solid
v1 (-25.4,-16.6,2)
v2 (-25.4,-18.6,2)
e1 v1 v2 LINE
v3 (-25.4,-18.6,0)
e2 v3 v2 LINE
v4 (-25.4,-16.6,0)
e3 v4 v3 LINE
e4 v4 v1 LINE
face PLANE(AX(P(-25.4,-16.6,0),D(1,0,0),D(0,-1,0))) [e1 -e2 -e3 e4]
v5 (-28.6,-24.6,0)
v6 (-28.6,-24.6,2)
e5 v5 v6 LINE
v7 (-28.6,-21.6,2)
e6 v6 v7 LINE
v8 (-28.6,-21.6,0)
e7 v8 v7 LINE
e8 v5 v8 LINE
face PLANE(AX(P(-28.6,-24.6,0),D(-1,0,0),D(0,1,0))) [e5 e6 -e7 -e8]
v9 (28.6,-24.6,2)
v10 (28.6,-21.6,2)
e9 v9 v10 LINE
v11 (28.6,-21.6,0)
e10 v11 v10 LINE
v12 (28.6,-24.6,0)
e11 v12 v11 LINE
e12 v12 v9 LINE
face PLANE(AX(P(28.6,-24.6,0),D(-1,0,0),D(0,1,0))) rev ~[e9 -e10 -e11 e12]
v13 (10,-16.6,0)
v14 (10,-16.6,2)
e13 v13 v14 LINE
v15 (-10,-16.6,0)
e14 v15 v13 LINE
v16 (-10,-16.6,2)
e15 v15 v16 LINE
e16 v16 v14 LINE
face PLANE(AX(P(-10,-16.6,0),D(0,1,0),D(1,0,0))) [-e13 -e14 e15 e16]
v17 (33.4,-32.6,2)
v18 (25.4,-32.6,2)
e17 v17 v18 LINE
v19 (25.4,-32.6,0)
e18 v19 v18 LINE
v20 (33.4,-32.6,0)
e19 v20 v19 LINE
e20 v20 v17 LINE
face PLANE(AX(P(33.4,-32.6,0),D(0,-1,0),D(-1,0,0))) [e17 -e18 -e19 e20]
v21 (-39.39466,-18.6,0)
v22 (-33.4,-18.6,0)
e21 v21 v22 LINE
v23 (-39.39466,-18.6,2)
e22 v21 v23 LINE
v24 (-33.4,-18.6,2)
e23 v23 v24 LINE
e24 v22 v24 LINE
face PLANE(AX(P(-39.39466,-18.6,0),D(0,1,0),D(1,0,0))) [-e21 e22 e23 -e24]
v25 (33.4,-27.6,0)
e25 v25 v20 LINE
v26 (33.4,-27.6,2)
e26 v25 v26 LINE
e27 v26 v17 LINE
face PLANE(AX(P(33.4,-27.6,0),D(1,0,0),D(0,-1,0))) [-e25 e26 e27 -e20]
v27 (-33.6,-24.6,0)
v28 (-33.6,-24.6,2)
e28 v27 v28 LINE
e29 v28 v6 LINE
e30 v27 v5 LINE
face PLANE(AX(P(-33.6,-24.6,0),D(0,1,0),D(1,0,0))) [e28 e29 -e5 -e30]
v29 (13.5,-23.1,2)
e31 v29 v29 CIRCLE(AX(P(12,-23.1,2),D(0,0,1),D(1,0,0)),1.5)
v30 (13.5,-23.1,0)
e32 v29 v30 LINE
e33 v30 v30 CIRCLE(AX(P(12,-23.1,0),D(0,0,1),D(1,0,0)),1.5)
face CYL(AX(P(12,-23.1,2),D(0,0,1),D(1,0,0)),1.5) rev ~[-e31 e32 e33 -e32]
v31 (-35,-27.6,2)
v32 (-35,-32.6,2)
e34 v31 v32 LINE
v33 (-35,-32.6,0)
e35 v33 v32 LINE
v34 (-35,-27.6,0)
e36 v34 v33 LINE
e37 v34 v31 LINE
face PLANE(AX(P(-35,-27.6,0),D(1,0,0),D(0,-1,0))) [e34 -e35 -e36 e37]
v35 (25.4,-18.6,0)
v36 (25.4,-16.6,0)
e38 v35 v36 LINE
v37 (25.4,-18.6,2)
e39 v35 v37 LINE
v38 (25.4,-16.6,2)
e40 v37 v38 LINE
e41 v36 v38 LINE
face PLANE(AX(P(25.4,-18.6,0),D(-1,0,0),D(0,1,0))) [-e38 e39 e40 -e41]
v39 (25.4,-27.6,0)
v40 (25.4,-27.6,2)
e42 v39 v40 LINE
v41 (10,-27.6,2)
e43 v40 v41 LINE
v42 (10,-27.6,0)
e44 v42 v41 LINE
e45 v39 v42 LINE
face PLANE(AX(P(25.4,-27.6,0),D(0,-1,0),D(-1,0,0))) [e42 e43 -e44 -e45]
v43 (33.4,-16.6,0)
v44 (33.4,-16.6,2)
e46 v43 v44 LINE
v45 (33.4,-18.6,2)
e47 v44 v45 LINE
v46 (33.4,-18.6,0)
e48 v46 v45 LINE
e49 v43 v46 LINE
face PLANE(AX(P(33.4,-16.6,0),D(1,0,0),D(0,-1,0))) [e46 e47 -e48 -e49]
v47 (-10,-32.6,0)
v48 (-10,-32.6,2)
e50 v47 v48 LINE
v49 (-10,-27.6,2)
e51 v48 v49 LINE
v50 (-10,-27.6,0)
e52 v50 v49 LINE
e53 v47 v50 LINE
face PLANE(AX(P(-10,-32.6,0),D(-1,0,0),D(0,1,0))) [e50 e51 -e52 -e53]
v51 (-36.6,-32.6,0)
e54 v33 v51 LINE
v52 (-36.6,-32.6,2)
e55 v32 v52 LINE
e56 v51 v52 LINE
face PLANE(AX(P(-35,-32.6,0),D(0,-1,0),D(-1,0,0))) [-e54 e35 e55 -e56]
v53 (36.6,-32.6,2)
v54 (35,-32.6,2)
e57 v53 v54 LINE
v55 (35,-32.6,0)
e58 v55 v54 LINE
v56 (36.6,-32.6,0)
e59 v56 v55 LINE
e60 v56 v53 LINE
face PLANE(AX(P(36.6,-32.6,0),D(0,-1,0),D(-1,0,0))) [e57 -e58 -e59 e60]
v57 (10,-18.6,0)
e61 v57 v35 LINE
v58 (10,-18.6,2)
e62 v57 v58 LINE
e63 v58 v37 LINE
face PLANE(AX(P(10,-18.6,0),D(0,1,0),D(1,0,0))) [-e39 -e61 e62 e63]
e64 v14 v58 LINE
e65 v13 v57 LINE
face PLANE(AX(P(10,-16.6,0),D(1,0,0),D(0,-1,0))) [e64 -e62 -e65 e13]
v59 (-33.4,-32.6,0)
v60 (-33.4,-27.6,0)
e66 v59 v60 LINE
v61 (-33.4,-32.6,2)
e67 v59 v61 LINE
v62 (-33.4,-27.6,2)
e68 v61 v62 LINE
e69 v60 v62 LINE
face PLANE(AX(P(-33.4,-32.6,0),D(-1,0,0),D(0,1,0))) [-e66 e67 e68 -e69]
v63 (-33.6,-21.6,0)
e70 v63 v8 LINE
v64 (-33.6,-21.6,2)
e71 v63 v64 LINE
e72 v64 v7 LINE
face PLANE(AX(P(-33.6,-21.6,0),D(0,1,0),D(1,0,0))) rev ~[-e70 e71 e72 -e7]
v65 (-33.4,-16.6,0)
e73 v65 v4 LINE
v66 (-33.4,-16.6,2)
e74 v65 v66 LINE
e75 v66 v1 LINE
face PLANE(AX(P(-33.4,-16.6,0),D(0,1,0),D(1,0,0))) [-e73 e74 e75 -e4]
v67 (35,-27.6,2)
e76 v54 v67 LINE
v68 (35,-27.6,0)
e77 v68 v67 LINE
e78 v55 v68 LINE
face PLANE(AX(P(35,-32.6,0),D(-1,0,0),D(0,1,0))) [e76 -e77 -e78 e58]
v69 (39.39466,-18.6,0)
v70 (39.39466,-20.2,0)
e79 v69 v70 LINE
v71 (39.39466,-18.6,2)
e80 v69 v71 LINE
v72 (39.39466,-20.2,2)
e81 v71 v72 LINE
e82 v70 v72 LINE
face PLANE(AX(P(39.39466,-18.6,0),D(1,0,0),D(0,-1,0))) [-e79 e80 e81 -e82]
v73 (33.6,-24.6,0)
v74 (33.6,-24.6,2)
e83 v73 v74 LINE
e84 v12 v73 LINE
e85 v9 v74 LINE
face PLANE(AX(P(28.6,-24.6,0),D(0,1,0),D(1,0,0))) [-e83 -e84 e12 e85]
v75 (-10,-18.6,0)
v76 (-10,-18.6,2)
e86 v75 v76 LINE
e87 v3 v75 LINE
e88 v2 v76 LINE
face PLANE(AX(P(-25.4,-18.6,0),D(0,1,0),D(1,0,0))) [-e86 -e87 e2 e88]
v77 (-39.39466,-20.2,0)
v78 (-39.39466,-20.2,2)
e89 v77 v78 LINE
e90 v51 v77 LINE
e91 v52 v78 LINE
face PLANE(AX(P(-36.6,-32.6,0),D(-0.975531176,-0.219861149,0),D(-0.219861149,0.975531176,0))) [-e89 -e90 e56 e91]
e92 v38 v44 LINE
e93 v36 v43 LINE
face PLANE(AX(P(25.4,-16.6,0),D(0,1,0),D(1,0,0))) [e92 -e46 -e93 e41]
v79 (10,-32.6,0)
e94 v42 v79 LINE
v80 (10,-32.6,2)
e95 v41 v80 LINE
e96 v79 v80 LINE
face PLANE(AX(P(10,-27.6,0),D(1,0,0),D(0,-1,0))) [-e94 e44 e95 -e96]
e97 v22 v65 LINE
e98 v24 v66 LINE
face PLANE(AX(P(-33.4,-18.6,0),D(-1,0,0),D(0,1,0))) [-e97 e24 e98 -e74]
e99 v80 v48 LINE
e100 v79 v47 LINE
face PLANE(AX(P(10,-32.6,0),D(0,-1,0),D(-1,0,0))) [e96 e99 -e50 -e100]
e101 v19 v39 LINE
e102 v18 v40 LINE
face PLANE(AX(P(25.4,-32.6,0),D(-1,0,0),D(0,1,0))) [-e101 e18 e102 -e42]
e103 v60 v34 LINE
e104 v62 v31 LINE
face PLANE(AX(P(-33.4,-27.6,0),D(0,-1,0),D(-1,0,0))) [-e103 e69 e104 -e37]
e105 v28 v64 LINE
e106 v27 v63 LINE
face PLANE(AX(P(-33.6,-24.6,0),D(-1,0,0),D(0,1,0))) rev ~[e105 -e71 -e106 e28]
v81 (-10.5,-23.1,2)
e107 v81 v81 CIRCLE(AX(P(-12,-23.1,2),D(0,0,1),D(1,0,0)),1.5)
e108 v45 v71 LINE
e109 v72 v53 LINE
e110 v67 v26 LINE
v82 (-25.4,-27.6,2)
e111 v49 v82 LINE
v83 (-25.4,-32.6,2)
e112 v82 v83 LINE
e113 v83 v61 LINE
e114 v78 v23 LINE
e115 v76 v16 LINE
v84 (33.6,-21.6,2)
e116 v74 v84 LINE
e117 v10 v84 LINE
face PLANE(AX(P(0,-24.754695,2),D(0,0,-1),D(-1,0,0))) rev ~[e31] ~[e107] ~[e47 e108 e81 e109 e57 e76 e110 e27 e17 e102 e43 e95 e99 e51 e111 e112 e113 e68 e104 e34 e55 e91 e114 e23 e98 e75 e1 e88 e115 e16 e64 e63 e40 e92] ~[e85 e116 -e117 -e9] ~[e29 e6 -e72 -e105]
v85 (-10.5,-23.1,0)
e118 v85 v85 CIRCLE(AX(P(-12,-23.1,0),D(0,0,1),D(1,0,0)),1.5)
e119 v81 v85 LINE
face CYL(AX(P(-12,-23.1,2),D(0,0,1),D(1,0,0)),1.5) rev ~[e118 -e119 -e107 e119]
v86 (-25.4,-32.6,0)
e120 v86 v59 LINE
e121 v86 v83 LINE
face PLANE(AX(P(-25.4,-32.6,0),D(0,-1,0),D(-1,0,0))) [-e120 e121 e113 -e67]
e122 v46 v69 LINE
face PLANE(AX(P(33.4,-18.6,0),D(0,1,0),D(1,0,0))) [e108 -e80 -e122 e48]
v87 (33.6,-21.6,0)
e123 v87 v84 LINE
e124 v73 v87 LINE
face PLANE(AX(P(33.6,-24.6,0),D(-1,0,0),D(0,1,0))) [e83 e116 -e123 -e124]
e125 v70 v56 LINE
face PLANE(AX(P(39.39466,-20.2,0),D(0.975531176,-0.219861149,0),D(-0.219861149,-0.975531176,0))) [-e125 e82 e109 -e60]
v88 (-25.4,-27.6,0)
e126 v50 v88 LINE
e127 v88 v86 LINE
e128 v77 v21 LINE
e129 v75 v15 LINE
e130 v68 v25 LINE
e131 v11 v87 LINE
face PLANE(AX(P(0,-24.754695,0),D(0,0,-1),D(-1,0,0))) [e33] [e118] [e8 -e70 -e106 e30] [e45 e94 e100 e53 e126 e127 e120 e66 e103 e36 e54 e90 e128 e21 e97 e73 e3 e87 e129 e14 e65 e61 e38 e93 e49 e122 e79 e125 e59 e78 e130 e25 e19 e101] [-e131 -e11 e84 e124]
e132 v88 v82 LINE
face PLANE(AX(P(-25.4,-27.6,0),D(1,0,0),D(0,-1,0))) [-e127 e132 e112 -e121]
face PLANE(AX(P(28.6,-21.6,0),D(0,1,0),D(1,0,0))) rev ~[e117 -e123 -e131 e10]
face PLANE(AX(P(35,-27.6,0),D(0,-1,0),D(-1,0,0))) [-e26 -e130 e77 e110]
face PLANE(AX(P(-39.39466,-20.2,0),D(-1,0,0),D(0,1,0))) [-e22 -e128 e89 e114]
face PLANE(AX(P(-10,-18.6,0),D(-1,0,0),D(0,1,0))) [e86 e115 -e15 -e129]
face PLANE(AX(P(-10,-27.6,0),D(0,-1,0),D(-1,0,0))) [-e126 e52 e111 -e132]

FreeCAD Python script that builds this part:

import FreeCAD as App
import Part
import Sketcher
from FreeCAD import Vector
Q = App.Units.Quantity

doc = App.newDocument("Part")
body = doc.addObject("PartDesign::Body", "Body")

# Sketch on XY plane
sketch1 = body.newObject("Sketcher::SketchObject", "Sketch")
sketch1.AttachmentSupport = (doc.getObject("XY_Plane"), [""])
sketch1.MapMode = "FlatFace"
sketch1.addGeometry(Part.LineSegment(Vector(33.4, -32.6, 0), Vector(33.4, -27.6, 0)), False)
sketch1.addGeometry(Part.LineSegment(Vector(33.4, -27.6, 0), Vector(35, -27.6, 0)), False)
sketch1.addGeometry(Part.LineSegment(Vector(35, -27.6, 0), Vector(35, -32.6, 0)), False)
sketch1.addGeometry(Part.LineSegment(Vector(35, -32.6, 0), Vector(36.6, -32.6, 0)), False)
sketch1.addGeometry(Part.LineSegment(Vector(36.6, -32.6, 0), Vector(39.4, -20.2, 0)), False)
sketch1.addGeometry(Part.LineSegment(Vector(39.4, -20.2, 0), Vector(39.4, -18.6, 0)), False)
sketch1.addGeometry(Part.LineSegment(Vector(39.4, -18.6, 0), Vector(33.4, -18.6, 0)), False)
sketch1.addGeometry(Part.LineSegment(Vector(33.4, -18.6, 0), Vector(33.4, -16.6, 0)), False)
sketch1.addGeometry(Part.LineSegment(Vector(33.4, -16.6, 0), Vector(25.4, -16.6, 0)), False)
sketch1.addGeometry(Part.LineSegment(Vector(25.4, -16.6, 0), Vector(25.4, -18.6, 0)), False)
sketch1.addGeometry(Part.LineSegment(Vector(25.4, -18.6, 0), Vector(10, -18.6, 0)), False)
sketch1.addGeometry(Part.LineSegment(Vector(10, -18.6, 0), Vector(10, -16.6, 0)), False)
sketch1.addGeometry(Part.LineSegment(Vector(10, -16.6, 0), Vector(-10, -16.6, 0)), False)
sketch1.addGeometry(Part.LineSegment(Vector(-10, -16.6, 0), Vector(-10, -18.6, 0)), False)
sketch1.addGeometry(Part.LineSegment(Vector(-10, -18.6, 0), Vector(-25.4, -18.6, 0)), False)
sketch1.addGeometry(Part.LineSegment(Vector(-25.4, -18.6, 0), Vector(-25.4, -16.6, 0)), False)
sketch1.addGeometry(Part.LineSegment(Vector(-25.4, -16.6, 0), Vector(-33.4, -16.6, 0)), False)
sketch1.addGeometry(Part.LineSegment(Vector(-33.4, -16.6, 0), Vector(-33.4, -18.6, 0)), False)
sketch1.addGeometry(Part.LineSegment(Vector(-33.4, -18.6, 0), Vector(-39.4, -18.6, 0)), False)
sketch1.addGeometry(Part.LineSegment(Vector(-39.4, -18.6, 0), Vector(-39.4, -20.2, 0)), False)
sketch1.addGeometry(Part.LineSegment(Vector(-39.4, -20.2, 0), Vector(-36.6, -32.6, 0)), False)
sketch1.addGeometry(Part.LineSegment(Vector(-36.6, -32.6, 0), Vector(-35, -32.6, 0)), False)
sketch1.addGeometry(Part.LineSegment(Vector(-35, -32.6, 0), Vector(-35, -27.6, 0)), False)
sketch1.addGeometry(Part.LineSegment(Vector(-35, -27.6, 0), Vector(-33.4, -27.6, 0)), False)
sketch1.addGeometry(Part.LineSegment(Vector(-33.4, -27.6, 0), Vector(-33.4, -32.6, 0)), False)
sketch1.addGeometry(Part.LineSegment(Vector(-33.4, -32.6, 0), Vector(-25.4, -32.6, 0)), False)
sketch1.addGeometry(Part.LineSegment(Vector(-25.4, -32.6, 0), Vector(-25.4, -27.6, 0)), False)
sketch1.addGeometry(Part.LineSegment(Vector(-25.4, -27.6, 0), Vector(-10, -27.6, 0)), False)
sketch1.addGeometry(Part.LineSegment(Vector(-10, -27.6, 0), Vector(-10, -32.6, 0)), False)
sketch1.addGeometry(Part.LineSegment(Vector(-10, -32.6, 0), Vector(10, -32.6, 0)), False)
sketch1.addGeometry(Part.LineSegment(Vector(10, -32.6, 0), Vector(10, -27.6, 0)), False)
sketch1.addGeometry(Part.LineSegment(Vector(10, -27.6, 0), Vector(25.4, -27.6, 0)), False)
sketch1.addGeometry(Part.LineSegment(Vector(25.4, -27.6, 0), Vector(25.4, -32.6, 0)), False)
sketch1.addGeometry(Part.LineSegment(Vector(25.4, -32.6, 0), Vector(33.4, -32.6, 0)), False)
sketch1.addGeometry(Part.LineSegment(Vector(28.6, -24.6, 0), Vector(28.6, -21.6, 0)), False)
sketch1.addGeometry(Part.LineSegment(Vector(28.6, -21.6, 0), Vector(33.6, -21.6, 0)), False)
sketch1.addGeometry(Part.LineSegment(Vector(33.6, -21.6, 0), Vector(33.6, -24.6, 0)), False)
sketch1.addGeometry(Part.LineSegment(Vector(33.6, -24.6, 0), Vector(28.6, -24.6, 0)), False)
sketch1.addGeometry(Part.LineSegment(Vector(-33.6, -24.6, 0), Vector(-33.6, -21.6, 0)), False)
sketch1.addGeometry(Part.LineSegment(Vector(-33.6, -21.6, 0), Vector(-28.6, -21.6, 0)), False)
sketch1.addGeometry(Part.LineSegment(Vector(-28.6, -21.6, 0), Vector(-28.6, -24.6, 0)), False)
sketch1.addGeometry(Part.LineSegment(Vector(-28.6, -24.6, 0), Vector(-33.6, -24.6, 0)), False)
sketch1.addConstraint(Sketcher.Constraint("Coincident", 0, 2, 1, 1))
sketch1.addConstraint(Sketcher.Constraint("Coincident", 1, 2, 2, 1))
sketch1.addConstraint(Sketcher.Constraint("Coincident", 2, 2, 3, 1))
sketch1.addConstraint(Sketcher.Constraint("Coincident", 3, 2, 4, 1))
sketch1.addConstraint(Sketcher.Constraint("Coincident", 4, 2, 5, 1))
sketch1.addConstraint(Sketcher.Constraint("Coincident", 5, 2, 6, 1))
sketch1.addConstraint(Sketcher.Constraint("Coincident", 6, 2, 7, 1))
sketch1.addConstraint(Sketcher.Constraint("Coincident", 7, 2, 8, 1))
sketch1.addConstraint(Sketcher.Constraint("Coincident", 8, 2, 9, 1))
sketch1.addConstraint(Sketcher.Constraint("Coincident", 9, 2, 10, 1))
sketch1.addConstraint(Sketcher.Constraint("Coincident", 10, 2, 11, 1))
sketch1.addConstraint(Sketcher.Constraint("Coincident", 11, 2, 12, 1))
sketch1.addConstraint(Sketcher.Constraint("Coincident", 12, 2, 13, 1))
sketch1.addConstraint(Sketcher.Constraint("Coincident", 13, 2, 14, 1))
sketch1.addConstraint(Sketcher.Constraint("Coincident", 14, 2, 15, 1))
sketch1.addConstraint(Sketcher.Constraint("Coincident", 15, 2, 16, 1))
sketch1.addConstraint(Sketcher.Constraint("Coincident", 16, 2, 17, 1))
sketch1.addConstraint(Sketcher.Constraint("Coincident", 17, 2, 18, 1))
sketch1.addConstraint(Sketcher.Constraint("Coincident", 18, 2, 19, 1))
sketch1.addConstraint(Sketcher.Constraint("Coincident", 19, 2, 20, 1))
sketch1.addConstraint(Sketcher.Constraint("Coincident", 20, 2, 21, 1))
sketch1.addConstraint(Sketcher.Constraint("Coincident", 21, 2, 22, 1))
sketch1.addConstraint(Sketcher.Constraint("Coincident", 22, 2, 23, 1))
sketch1.addConstraint(Sketcher.Constraint("Coincident", 23, 2, 24, 1))
sketch1.addConstraint(Sketcher.Constraint("Coincident", 24, 2, 25, 1))
sketch1.addConstraint(Sketcher.Constraint("Coincident", 25, 2, 26, 1))
sketch1.addConstraint(Sketcher.Constraint("Coincident", 26, 2, 27, 1))
sketch1.addConstraint(Sketcher.Constraint("Coincident", 27, 2, 28, 1))
sketch1.addConstraint(Sketcher.Constraint("Coincident", 28, 2, 29, 1))
sketch1.addConstraint(Sketcher.Constraint("Coincident", 29, 2, 30, 1))
sketch1.addConstraint(Sketcher.Constraint("Coincident", 30, 2, 31, 1))
sketch1.addConstraint(Sketcher.Constraint("Coincident", 31, 2, 32, 1))
sketch1.addConstraint(Sketcher.Constraint("Coincident", 32, 2, 33, 1))
sketch1.addConstraint(Sketcher.Constraint("Coincident", 33, 2, 0, 1))
sketch1.addConstraint(Sketcher.Constraint("Coincident", 34, 2, 35, 1))
sketch1.addConstraint(Sketcher.Constraint("Coincident", 35, 2, 36, 1))
sketch1.addConstraint(Sketcher.Constraint("Coincident", 36, 2, 37, 1))
sketch1.addConstraint(Sketcher.Constraint("Coincident", 37, 2, 34, 1))
sketch1.addConstraint(Sketcher.Constraint("Coincident", 38, 2, 39, 1))
sketch1.addConstraint(Sketcher.Constraint("Coincident", 39, 2, 40, 1))
sketch1.addConstraint(Sketcher.Constraint("Coincident", 40, 2, 41, 1))
sketch1.addConstraint(Sketcher.Constraint("Coincident", 41, 2, 38, 1))
sketch1.addConstraint(Sketcher.Constraint("Vertical", 0))
sketch1.addConstraint(Sketcher.Constraint("Horizontal", 1))
sketch1.addConstraint(Sketcher.Constraint("Vertical", 2))
sketch1.addConstraint(Sketcher.Constraint("Horizontal", 3))
sketch1.addConstraint(Sketcher.Constraint("Vertical", 5))
sketch1.addConstraint(Sketcher.Constraint("Horizontal", 6))
sketch1.addConstraint(Sketcher.Constraint("Vertical", 7))
sketch1.addConstraint(Sketcher.Constraint("Horizontal", 8))
sketch1.addConstraint(Sketcher.Constraint("Vertical", 9))
sketch1.addConstraint(Sketcher.Constraint("Horizontal", 10))
sketch1.addConstraint(Sketcher.Constraint("Vertical", 11))
sketch1.addConstraint(Sketcher.Constraint("Horizontal", 12))
sketch1.addConstraint(Sketcher.Constraint("Vertical", 13))
sketch1.addConstraint(Sketcher.Constraint("Horizontal", 14))
sketch1.addConstraint(Sketcher.Constraint("Vertical", 15))
sketch1.addConstraint(Sketcher.Constraint("Horizontal", 16))
sketch1.addConstraint(Sketcher.Constraint("Vertical", 17))
sketch1.addConstraint(Sketcher.Constraint("Horizontal", 18))
sketch1.addConstraint(Sketcher.Constraint("Vertical", 19))
sketch1.addConstraint(Sketcher.Constraint("Horizontal", 21))
sketch1.addConstraint(Sketcher.Constraint("Vertical", 22))
sketch1.addConstraint(Sketcher.Constraint("Horizontal", 23))
sketch1.addConstraint(Sketcher.Constraint("Vertical", 24))
sketch1.addConstraint(Sketcher.Constraint("Horizontal", 25))
sketch1.addConstraint(Sketcher.Constraint("Vertical", 26))
sketch1.addConstraint(Sketcher.Constraint("Horizontal", 27))
sketch1.addConstraint(Sketcher.Constraint("Vertical", 28))
sketch1.addConstraint(Sketcher.Constraint("Horizontal", 29))
sketch1.addConstraint(Sketcher.Constraint("Vertical", 30))
sketch1.addConstraint(Sketcher.Constraint("Horizontal", 31))
sketch1.addConstraint(Sketcher.Constraint("Vertical", 32))
sketch1.addConstraint(Sketcher.Constraint("Horizontal", 33))
sketch1.addConstraint(Sketcher.Constraint("Vertical", 34))
sketch1.addConstraint(Sketcher.Constraint("Horizontal", 35))
sketch1.addConstraint(Sketcher.Constraint("Vertical", 36))
sketch1.addConstraint(Sketcher.Constraint("Horizontal", 37))
sketch1.addConstraint(Sketcher.Constraint("Vertical", 38))
sketch1.addConstraint(Sketcher.Constraint("Horizontal", 39))
sketch1.addConstraint(Sketcher.Constraint("Vertical", 40))
sketch1.addConstraint(Sketcher.Constraint("Horizontal", 41))
sketch1.addConstraint(Sketcher.Constraint("Symmetric", 10, 2, 13, 2, -2))
sketch1.addConstraint(Sketcher.Constraint("Symmetric", 8, 2, 15, 2, -2))
sketch1.addConstraint(Sketcher.Constraint("Symmetric", 6, 2, 17, 2, -2))
sketch1.addConstraint(Sketcher.Constraint("Symmetric", 4, 2, 19, 2, -2))
sketch1.addConstraint(Sketcher.Constraint("Symmetric", 3, 2, 20, 2, -2))
sketch1.addConstraint(Sketcher.Constraint("Symmetric", 1, 2, 22, 2, -2))
sketch1.addConstraint(Sketcher.Constraint("Symmetric", 27, 2, 30, 2, -2))
sketch1.addConstraint(Sketcher.Constraint("Symmetric", 25, 2, 32, 2, -2))
sketch1.addConstraint(Sketcher.Constraint("Symmetric", 35, 2, 38, 2, -2))
sketch1.addConstraint(Sketcher.Constraint("Symmetric", 37, 2, 40, 2, -2))
sketch1.addConstraint(Sketcher.Constraint("Horizontal", 6, 2, 9, 2))
sketch1.addConstraint(Sketcher.Constraint("Horizontal", 8, 2, 11, 2))
sketch1.addConstraint(Sketcher.Constraint("Horizontal", 21, 2, 24, 2))
sketch1.addConstraint(Sketcher.Constraint("Horizontal", 23, 2, 26, 2))
sketch1.addConstraint(Sketcher.Constraint("Horizontal", 25, 2, 28, 2))
sketch1.addConstraint(Sketcher.Constraint("Vertical", 0, 2, 6, 2))
sketch1.addConstraint(Sketcher.Constraint("Vertical", 17, 2, 23, 2))
sketch1.addConstraint(Sketcher.Constraint("Vertical", 15, 2, 25, 2))
sketch1.addConstraint(Sketcher.Constraint("Vertical", 13, 2, 27, 2))
sketch1.addConstraint(Sketcher.Constraint("Equal", 1, 3))
sketch1.addConstraint(Sketcher.Constraint("Equal", 41, 0))
sketch1.addConstraint(Sketcher.Constraint("Equal", 23, 5))
sketch1.addConstraint(Sketcher.Constraint("DistanceX", 8, 2, 8, 1, Q("8 mm")))
sketch1.addConstraint(Sketcher.Constraint("DistanceX", 12, 2, 12, 1, Q("20 mm")))
sketch1.addConstraint(Sketcher.Constraint("DistanceX", 35, 1, 35, 2, Q("5 mm")))
sketch1.addConstraint(Sketcher.Constraint("DistanceY", 7, 1, 7, 2, Q("2 mm")))
sketch1.addConstraint(Sketcher.Constraint("DistanceY", 34, 1, 34, 2, Q("3 mm")))
sketch1.addConstraint(Sketcher.Constraint("DistanceX", 1, 1, 1, 2, Q("1.6 mm")))
sketch1.addConstraint(Sketcher.Constraint("DistanceX", 10, 2, 10, 1, Q("15.4 mm")))
sketch1.addConstraint(Sketcher.Constraint("DistanceY", 1, 2, 5, 2, Q("9 mm")))
sketch1.addConstraint(Sketcher.Constraint("DistanceY", 34, 2, 9, 2, Q("3 mm")))
sketch1.addConstraint(Sketcher.Constraint("DistanceY", 0, 2, -1, 1, Q("27.6 mm")))
sketch1.addConstraint(Sketcher.Constraint("DistanceX", -1, 1, 34, 2, Q("28.6 mm")))
sketch1.addConstraint(Sketcher.Constraint("DistanceX", 6, 2, 6, 1, Q("5.99466 mm")))
pad1 = body.newObject("PartDesign::Pad", "Pad")
pad1.Profile = sketch1
pad1.Length = 2

# Sketch on XY plane
sketch2 = body.newObject("Sketcher::SketchObject", "Sketch001")
sketch2.AttachmentSupport = (doc.getObject("XY_Plane"), [""])
sketch2.MapMode = "FlatFace"
sketch2.AttachmentOffset = App.Placement(Vector(0, 0, 2), App.Rotation())
sketch2.addGeometry(Part.Circle(Vector(12, -23.1, 0), Vector(0, 0, 1), 1.5), False)
sketch2.addConstraint(Sketcher.Constraint("Diameter", 0, Q("3 mm")))
sketch2.addConstraint(Sketcher.Constraint("DistanceX", -1, 1, 0, 3, Q("12 mm")))
sketch2.addConstraint(Sketcher.Constraint("DistanceY", 0, 3, -1, 1, Q("23.1 mm")))
pocket1 = body.newObject("PartDesign::Pocket", "Pocket")
pocket1.Profile = sketch2
pocket1.Type = "UpToFirst"

# Sketch on XY plane
sketch3 = body.newObject("Sketcher::SketchObject", "Sketch002")
sketch3.AttachmentSupport = (doc.getObject("XY_Plane"), [""])
sketch3.MapMode = "FlatFace"
sketch3.AttachmentOffset = App.Placement(Vector(0, 0, 2), App.Rotation())
sketch3.addGeometry(Part.Circle(Vector(-12, -23.1, 0), Vector(0, 0, 1), 1.5), False)
sketch3.addConstraint(Sketcher.Constraint("Diameter", 0, Q("3 mm")))
sketch3.addConstraint(Sketcher.Constraint("DistanceX", 0, 3, -1, 1, Q("12 mm")))
sketch3.addConstraint(Sketcher.Constraint("DistanceY", 0, 3, -1, 1, Q("23.1 mm")))
pocket2 = body.newObject("PartDesign::Pocket", "Pocket001")
pocket2.Profile = sketch3
pocket2.Type = "UpToFirst"

doc.recompute()
